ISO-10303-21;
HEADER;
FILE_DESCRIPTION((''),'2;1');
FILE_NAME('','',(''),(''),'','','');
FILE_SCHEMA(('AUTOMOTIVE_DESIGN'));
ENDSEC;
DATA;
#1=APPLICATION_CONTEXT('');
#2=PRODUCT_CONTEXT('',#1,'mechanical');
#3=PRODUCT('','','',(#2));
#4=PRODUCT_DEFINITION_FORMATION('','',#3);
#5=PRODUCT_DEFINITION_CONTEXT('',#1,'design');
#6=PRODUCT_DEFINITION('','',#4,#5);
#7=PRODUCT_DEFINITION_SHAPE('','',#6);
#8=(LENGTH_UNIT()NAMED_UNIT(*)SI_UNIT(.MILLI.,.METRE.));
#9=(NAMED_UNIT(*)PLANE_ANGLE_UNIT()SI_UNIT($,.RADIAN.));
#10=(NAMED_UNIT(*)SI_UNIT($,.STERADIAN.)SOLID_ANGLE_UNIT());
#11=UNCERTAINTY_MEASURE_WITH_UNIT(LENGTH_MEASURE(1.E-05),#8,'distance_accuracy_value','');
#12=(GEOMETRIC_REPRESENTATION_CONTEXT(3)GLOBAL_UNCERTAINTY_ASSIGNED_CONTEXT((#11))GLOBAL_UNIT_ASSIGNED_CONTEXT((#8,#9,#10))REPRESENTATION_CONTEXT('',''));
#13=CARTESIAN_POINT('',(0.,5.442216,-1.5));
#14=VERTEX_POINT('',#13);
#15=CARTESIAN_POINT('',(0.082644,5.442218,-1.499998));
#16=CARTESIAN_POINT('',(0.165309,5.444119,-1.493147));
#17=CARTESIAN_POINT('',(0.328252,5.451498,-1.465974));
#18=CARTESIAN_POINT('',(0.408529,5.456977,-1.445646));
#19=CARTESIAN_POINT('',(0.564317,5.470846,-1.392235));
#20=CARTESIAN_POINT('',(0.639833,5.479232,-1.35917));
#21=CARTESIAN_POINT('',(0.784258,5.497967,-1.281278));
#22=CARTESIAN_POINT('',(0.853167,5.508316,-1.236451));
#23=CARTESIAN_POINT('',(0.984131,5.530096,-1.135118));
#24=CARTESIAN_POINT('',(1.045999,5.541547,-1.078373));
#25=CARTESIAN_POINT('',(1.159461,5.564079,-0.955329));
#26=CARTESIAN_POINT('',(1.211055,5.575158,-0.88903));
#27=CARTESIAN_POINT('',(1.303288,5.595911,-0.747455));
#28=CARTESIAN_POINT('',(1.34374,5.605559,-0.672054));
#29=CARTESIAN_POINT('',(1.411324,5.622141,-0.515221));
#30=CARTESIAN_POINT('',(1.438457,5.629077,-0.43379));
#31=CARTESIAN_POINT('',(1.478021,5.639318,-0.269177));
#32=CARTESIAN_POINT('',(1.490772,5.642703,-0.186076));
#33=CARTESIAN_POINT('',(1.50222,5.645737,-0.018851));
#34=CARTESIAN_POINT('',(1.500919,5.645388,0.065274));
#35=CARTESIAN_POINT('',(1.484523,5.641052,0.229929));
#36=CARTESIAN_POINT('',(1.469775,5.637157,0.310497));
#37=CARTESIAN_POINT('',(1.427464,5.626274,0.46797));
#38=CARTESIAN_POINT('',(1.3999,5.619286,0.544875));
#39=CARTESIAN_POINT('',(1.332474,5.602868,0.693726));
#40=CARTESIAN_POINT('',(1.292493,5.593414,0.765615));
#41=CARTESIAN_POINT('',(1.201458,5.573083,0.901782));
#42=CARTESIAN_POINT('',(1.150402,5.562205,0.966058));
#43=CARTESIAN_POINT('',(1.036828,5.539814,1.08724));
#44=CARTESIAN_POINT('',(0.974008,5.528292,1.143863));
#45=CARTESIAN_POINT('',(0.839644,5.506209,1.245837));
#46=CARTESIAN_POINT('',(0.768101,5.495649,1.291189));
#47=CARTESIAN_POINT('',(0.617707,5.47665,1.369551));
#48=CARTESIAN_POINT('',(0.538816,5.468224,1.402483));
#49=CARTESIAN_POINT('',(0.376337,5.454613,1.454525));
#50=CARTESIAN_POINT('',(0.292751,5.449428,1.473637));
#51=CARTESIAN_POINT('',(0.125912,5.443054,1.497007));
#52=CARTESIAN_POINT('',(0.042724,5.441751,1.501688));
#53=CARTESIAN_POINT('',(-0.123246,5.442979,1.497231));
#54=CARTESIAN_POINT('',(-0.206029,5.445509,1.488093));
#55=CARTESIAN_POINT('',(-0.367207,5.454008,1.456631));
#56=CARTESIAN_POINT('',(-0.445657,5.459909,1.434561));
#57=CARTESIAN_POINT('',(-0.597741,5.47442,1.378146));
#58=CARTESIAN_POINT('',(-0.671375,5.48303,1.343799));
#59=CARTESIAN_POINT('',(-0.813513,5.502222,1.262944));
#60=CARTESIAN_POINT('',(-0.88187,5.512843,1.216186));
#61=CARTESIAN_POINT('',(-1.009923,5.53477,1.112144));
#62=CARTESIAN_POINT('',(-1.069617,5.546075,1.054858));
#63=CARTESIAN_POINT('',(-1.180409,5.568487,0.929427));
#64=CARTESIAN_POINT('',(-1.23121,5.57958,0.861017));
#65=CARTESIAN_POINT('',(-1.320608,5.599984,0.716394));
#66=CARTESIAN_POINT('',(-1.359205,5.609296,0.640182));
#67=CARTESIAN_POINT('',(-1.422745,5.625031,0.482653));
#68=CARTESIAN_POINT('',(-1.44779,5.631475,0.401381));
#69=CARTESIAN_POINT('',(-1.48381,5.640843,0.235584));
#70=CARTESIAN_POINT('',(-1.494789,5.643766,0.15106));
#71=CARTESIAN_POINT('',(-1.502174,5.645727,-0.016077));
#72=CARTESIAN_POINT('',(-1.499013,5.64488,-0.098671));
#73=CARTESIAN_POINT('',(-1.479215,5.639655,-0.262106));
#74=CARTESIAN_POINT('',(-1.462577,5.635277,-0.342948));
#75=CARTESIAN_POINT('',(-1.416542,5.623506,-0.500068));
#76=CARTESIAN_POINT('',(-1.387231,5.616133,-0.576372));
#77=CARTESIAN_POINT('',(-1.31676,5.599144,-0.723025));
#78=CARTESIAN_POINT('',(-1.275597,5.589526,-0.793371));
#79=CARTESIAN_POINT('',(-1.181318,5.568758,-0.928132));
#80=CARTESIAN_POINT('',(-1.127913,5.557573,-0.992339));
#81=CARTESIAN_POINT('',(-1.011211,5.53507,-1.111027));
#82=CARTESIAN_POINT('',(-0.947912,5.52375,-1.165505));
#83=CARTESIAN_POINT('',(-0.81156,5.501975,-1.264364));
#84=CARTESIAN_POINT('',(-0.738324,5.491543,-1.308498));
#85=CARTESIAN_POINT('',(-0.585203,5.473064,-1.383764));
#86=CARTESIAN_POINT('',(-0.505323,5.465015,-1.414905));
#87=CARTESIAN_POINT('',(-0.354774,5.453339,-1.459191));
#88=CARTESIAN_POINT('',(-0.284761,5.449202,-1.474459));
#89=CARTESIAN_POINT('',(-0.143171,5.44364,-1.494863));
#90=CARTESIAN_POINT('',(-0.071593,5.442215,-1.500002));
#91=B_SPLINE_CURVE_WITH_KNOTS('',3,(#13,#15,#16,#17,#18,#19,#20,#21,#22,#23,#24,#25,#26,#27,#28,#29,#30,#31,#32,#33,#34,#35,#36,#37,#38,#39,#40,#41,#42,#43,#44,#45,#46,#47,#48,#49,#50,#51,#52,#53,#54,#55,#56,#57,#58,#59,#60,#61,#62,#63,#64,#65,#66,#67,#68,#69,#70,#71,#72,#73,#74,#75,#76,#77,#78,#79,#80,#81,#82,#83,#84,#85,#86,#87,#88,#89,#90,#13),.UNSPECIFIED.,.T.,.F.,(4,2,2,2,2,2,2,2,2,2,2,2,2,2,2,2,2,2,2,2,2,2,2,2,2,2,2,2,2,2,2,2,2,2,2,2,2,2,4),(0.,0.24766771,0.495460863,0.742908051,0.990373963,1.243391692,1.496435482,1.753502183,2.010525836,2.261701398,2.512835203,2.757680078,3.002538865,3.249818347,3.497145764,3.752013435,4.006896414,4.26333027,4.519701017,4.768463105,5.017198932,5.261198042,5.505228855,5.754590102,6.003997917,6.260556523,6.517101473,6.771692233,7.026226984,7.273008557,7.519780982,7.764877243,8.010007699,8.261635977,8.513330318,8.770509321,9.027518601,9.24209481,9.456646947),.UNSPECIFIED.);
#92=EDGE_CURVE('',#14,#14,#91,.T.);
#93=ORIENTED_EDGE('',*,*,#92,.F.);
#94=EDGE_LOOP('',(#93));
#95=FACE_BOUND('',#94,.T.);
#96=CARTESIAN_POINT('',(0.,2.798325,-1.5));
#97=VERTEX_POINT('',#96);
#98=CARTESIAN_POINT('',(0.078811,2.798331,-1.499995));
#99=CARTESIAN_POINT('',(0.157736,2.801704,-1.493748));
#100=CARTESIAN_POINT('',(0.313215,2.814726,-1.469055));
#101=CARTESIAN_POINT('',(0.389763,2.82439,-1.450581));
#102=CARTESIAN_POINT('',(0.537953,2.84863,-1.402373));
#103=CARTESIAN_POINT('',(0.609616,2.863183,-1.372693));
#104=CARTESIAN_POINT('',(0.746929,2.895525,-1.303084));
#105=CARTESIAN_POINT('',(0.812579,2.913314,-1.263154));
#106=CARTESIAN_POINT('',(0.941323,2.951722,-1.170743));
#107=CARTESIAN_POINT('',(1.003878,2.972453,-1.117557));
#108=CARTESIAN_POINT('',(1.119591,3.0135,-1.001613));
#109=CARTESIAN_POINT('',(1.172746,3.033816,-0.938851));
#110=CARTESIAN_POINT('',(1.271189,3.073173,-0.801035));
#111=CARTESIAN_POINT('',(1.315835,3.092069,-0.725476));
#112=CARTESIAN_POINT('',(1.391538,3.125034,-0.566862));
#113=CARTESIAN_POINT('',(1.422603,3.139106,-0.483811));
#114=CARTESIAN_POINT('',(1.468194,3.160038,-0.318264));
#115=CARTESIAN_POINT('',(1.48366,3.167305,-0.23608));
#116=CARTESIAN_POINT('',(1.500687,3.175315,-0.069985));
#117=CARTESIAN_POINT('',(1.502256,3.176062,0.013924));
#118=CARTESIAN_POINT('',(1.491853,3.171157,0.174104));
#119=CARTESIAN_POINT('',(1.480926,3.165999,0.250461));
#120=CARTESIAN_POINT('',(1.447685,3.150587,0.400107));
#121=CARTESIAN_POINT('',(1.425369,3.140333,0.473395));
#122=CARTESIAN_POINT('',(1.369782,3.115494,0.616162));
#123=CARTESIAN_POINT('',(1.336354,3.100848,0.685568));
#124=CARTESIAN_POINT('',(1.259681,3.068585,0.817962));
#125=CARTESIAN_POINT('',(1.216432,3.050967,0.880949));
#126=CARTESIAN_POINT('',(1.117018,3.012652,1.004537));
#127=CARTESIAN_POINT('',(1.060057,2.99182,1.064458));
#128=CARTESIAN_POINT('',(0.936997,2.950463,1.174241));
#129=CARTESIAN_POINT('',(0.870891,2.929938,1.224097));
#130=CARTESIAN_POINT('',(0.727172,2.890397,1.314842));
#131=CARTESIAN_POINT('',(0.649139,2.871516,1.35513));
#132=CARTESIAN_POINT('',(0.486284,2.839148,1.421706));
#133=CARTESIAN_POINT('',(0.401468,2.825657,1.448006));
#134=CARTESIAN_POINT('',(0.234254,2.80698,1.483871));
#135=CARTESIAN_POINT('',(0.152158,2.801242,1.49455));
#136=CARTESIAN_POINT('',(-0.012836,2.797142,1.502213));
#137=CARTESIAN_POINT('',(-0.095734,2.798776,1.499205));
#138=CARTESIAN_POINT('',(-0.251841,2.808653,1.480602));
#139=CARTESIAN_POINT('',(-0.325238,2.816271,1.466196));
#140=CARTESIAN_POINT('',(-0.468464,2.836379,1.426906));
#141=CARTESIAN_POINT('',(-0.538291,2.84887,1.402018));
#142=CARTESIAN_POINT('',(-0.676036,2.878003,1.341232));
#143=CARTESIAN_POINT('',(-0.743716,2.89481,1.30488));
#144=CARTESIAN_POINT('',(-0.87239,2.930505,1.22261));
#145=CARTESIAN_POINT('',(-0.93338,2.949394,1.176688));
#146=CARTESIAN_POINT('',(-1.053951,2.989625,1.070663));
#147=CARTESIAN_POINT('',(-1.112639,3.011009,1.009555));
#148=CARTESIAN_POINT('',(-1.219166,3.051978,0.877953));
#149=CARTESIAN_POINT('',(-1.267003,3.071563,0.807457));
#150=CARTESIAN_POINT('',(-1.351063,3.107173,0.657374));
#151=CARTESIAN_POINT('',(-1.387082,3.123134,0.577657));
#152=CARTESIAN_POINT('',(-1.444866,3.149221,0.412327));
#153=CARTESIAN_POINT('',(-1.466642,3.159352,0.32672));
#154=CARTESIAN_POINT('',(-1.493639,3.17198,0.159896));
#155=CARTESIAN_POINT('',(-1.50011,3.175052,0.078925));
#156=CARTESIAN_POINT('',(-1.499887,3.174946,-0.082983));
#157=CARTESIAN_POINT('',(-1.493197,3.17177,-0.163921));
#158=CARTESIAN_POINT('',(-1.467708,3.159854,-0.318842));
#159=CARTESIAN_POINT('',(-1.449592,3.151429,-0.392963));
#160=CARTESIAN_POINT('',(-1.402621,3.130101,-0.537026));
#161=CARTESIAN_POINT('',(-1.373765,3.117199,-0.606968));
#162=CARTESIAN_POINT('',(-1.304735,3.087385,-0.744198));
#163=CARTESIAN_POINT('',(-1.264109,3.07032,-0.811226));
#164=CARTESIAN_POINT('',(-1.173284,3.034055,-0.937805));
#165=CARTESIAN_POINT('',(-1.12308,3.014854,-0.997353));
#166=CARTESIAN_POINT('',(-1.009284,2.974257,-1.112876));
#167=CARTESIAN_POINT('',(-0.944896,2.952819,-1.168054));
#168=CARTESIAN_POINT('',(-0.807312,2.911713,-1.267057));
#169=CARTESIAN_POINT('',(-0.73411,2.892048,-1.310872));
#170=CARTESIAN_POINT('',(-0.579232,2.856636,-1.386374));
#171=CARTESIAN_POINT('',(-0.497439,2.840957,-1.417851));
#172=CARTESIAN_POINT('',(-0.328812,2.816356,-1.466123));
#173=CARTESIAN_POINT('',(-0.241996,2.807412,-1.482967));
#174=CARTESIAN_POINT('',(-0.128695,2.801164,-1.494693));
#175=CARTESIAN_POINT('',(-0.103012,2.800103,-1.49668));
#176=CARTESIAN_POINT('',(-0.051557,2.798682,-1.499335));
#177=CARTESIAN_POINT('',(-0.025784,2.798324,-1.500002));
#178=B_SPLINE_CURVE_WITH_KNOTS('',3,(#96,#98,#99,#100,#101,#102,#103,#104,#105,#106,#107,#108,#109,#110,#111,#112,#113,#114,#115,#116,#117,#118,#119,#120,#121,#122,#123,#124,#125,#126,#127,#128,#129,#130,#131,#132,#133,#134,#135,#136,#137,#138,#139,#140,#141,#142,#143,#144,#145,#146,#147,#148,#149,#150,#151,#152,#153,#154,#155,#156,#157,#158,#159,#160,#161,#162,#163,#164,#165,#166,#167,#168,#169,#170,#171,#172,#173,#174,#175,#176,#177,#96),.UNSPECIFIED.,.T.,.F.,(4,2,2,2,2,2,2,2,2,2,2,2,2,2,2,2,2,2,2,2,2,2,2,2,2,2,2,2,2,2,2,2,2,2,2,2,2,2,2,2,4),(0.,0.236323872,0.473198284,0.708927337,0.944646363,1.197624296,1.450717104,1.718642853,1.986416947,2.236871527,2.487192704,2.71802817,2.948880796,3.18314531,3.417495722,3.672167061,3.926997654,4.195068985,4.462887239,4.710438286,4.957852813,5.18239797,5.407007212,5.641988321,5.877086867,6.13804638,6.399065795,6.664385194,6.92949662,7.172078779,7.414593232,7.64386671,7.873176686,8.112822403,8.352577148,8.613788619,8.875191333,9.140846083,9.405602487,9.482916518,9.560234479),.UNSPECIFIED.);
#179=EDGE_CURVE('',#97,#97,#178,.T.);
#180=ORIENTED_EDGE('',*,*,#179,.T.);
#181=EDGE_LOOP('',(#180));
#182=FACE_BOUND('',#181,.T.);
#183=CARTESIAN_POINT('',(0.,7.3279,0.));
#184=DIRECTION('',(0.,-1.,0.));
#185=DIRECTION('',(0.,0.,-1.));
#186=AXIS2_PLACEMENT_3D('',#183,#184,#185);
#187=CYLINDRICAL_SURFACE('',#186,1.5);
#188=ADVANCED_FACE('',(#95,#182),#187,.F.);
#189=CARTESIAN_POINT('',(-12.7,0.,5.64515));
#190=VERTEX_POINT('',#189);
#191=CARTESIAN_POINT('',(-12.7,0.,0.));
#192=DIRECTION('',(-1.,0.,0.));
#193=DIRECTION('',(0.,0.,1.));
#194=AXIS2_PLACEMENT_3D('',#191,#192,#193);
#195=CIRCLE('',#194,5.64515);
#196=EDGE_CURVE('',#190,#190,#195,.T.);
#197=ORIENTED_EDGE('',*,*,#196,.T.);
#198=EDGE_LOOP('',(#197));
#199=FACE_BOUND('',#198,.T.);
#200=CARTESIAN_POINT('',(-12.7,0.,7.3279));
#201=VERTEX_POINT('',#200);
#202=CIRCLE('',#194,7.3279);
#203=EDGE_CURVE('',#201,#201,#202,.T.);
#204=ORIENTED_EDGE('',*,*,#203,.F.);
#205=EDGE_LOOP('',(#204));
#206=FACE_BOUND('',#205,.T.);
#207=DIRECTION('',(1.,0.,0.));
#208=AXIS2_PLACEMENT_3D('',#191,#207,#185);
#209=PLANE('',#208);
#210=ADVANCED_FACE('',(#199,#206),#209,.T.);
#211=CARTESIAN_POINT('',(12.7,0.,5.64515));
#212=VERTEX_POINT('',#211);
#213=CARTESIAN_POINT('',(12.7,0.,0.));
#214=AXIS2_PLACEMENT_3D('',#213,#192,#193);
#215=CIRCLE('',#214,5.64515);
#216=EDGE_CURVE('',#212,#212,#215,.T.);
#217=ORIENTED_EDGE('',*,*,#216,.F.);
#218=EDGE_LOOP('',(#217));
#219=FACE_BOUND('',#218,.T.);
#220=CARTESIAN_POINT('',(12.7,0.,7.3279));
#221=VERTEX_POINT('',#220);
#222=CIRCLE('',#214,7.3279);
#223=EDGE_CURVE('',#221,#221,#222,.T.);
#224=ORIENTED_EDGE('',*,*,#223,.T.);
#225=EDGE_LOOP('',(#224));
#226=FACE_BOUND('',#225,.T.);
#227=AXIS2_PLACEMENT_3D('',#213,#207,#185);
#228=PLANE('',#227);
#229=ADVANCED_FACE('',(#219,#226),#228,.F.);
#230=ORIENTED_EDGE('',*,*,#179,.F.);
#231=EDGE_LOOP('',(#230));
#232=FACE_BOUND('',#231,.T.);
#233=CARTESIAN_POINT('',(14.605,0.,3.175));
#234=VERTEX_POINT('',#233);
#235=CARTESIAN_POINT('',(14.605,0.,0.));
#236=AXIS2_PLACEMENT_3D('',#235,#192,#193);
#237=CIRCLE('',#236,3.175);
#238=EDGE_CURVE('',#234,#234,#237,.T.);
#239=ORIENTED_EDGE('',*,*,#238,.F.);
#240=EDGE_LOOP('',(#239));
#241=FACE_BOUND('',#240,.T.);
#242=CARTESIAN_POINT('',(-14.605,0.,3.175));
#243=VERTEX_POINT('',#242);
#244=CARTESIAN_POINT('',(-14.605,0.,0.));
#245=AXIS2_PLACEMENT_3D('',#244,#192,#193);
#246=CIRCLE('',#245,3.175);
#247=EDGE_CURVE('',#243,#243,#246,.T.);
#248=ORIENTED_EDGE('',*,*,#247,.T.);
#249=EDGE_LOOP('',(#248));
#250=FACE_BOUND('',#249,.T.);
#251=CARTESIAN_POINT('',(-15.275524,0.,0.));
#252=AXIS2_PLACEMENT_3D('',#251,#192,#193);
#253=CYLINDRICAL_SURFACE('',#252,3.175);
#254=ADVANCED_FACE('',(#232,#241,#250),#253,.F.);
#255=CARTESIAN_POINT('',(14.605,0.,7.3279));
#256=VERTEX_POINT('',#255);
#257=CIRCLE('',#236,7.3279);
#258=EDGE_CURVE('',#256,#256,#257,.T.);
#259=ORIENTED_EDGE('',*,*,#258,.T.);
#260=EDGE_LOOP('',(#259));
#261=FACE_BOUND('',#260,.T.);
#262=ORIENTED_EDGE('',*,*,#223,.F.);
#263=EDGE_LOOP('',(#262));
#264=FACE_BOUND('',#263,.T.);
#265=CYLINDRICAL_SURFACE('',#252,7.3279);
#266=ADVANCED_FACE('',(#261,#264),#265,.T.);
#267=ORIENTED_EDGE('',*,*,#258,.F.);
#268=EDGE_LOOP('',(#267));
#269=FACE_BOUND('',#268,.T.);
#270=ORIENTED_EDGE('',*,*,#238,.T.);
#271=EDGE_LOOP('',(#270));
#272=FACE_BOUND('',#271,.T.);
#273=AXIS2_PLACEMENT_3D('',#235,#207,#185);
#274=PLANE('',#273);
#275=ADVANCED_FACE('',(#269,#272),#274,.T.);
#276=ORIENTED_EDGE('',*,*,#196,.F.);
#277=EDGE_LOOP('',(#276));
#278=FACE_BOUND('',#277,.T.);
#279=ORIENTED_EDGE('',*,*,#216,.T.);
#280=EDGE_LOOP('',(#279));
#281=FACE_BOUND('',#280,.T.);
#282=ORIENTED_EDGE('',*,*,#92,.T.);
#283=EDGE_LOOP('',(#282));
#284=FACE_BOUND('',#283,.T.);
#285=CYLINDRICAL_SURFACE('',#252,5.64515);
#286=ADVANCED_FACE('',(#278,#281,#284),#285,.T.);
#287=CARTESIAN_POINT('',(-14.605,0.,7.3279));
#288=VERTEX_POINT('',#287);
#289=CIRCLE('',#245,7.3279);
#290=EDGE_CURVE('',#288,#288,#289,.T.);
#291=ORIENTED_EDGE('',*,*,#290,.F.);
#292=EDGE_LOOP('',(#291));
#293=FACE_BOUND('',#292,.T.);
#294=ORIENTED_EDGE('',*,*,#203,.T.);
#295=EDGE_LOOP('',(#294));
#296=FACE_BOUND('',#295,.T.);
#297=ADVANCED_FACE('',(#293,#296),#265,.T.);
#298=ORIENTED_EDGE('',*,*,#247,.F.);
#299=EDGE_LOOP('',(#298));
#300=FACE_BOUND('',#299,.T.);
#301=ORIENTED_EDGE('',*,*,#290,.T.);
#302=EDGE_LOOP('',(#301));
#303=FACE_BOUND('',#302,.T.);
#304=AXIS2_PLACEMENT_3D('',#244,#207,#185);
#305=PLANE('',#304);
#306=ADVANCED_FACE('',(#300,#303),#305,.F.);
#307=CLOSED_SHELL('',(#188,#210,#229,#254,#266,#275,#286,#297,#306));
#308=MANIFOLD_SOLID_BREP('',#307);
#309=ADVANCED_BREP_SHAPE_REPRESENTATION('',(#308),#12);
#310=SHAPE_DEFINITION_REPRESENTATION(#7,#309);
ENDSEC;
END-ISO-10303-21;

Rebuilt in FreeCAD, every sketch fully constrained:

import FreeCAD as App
import Part
import Sketcher
Q = App.Units.Quantity

doc = App.newDocument("Part")
params = doc.addObject("Spreadsheet::Sheet", "Params")
for row, (alias, value) in enumerate([
    ("sketch1_width", "1 in"),
    ("sketch1_width2", "1.15 in"),
    ("revolution_angle", "360 deg"),
], start=1):
    params.set(f"A{row}", alias)
    params.set(f"B{row}", "=" + value)
    params.setAlias(f"B{row}", alias)

body = doc.addObject("PartDesign::Body", "Body")

# Sketch on XY plane
sketch1 = body.newObject("Sketcher::SketchObject", "Sketch")
sketch1.AttachmentSupport = (doc.getObject("XY_Plane"), [""])
sketch1.MapMode = "FlatFace"
sketch1.addGeometry([
    Part.LineSegment(App.Vector(14.6, 3.2, 0), App.Vector(14.6, 7.3, 0)),  # 0
    Part.LineSegment(App.Vector(14.6, 7.3, 0), App.Vector(12.7, 7.3, 0)),  # 1
    Part.LineSegment(App.Vector(12.7, 7.3, 0), App.Vector(12.7, 5.6, 0)),  # 2
    Part.LineSegment(App.Vector(12.7, 5.6, 0), App.Vector(-12.7, 5.6, 0)),  # 3
    Part.LineSegment(App.Vector(-12.7, 5.6, 0), App.Vector(-12.7, 7.3, 0)),  # 4
    Part.LineSegment(App.Vector(-12.7, 7.3, 0), App.Vector(-14.6, 7.3, 0)),  # 5
    Part.LineSegment(App.Vector(-14.6, 7.3, 0), App.Vector(-14.6, 3.2, 0)),  # 6
    Part.LineSegment(App.Vector(-14.6, 3.2, 0), App.Vector(14.6, 3.2, 0)),  # 7
], False)
sketch1.addConstraint([
    Sketcher.Constraint("Coincident", 0, 2, 1, 1),
    Sketcher.Constraint("Coincident", 1, 2, 2, 1),
    Sketcher.Constraint("Coincident", 2, 2, 3, 1),
    Sketcher.Constraint("Coincident", 3, 2, 4, 1),
    Sketcher.Constraint("Coincident", 4, 2, 5, 1),
    Sketcher.Constraint("Coincident", 5, 2, 6, 1),
    Sketcher.Constraint("Coincident", 6, 2, 7, 1),
    Sketcher.Constraint("Coincident", 7, 2, 0, 1),
    Sketcher.Constraint("Vertical", 0),
    Sketcher.Constraint("Horizontal", 1),
    Sketcher.Constraint("Vertical", 2),
    Sketcher.Constraint("Horizontal", 3),
    Sketcher.Constraint("Vertical", 4),
    Sketcher.Constraint("Horizontal", 5),
    Sketcher.Constraint("Vertical", 6),
    Sketcher.Constraint("Horizontal", 7),
    Sketcher.Constraint("Symmetric", 1, 2, 4, 2, -2),
    Sketcher.Constraint("Equal", 1, 5),
    Sketcher.Constraint("DistanceX", 3, 2, 3, 1, Q("1 in")),
    Sketcher.Constraint("DistanceX", 7, 1, 7, 2, Q("1.15 in")),
    Sketcher.Constraint("DistanceY", 0, 1, 0, 2, Q("0.1635 in")),
    Sketcher.Constraint("DistanceY", -1, 1, 6, 2, Q("0.125 in")),
    Sketcher.Constraint("DistanceY", 2, 2, 2, 1, 1.68275),
])
sketch1.setExpression("Constraints[18]", "Params.sketch1_width")
sketch1.setExpression("Constraints[19]", "Params.sketch1_width2")
revolution = body.newObject("PartDesign::Revolution", "Revolution")
revolution.Profile = sketch1
revolution.ReferenceAxis = (sketch1, ["H_Axis"])
revolution.setExpression("Angle", "Params.revolution_angle")

# Sketch on XZ plane
sketch2 = body.newObject("Sketcher::SketchObject", "Sketch001")
sketch2.AttachmentSupport = (doc.getObject("XZ_Plane"), [""])
sketch2.MapMode = "FlatFace"
sketch2.addGeometry(Part.Circle(App.Vector(0, 0, 0), App.Vector(0, 0, 1), 1.5), False)
sketch2.addConstraint([
    Sketcher.Constraint("Coincident", 0, 3, -1, 1),
    Sketcher.Constraint("Diameter", 0, 3.0),
])
pocket1 = body.newObject("PartDesign::Pocket", "Pocket")
pocket1.Profile = sketch2
pocket1.Type = "ThroughAll"

doc.recompute()
